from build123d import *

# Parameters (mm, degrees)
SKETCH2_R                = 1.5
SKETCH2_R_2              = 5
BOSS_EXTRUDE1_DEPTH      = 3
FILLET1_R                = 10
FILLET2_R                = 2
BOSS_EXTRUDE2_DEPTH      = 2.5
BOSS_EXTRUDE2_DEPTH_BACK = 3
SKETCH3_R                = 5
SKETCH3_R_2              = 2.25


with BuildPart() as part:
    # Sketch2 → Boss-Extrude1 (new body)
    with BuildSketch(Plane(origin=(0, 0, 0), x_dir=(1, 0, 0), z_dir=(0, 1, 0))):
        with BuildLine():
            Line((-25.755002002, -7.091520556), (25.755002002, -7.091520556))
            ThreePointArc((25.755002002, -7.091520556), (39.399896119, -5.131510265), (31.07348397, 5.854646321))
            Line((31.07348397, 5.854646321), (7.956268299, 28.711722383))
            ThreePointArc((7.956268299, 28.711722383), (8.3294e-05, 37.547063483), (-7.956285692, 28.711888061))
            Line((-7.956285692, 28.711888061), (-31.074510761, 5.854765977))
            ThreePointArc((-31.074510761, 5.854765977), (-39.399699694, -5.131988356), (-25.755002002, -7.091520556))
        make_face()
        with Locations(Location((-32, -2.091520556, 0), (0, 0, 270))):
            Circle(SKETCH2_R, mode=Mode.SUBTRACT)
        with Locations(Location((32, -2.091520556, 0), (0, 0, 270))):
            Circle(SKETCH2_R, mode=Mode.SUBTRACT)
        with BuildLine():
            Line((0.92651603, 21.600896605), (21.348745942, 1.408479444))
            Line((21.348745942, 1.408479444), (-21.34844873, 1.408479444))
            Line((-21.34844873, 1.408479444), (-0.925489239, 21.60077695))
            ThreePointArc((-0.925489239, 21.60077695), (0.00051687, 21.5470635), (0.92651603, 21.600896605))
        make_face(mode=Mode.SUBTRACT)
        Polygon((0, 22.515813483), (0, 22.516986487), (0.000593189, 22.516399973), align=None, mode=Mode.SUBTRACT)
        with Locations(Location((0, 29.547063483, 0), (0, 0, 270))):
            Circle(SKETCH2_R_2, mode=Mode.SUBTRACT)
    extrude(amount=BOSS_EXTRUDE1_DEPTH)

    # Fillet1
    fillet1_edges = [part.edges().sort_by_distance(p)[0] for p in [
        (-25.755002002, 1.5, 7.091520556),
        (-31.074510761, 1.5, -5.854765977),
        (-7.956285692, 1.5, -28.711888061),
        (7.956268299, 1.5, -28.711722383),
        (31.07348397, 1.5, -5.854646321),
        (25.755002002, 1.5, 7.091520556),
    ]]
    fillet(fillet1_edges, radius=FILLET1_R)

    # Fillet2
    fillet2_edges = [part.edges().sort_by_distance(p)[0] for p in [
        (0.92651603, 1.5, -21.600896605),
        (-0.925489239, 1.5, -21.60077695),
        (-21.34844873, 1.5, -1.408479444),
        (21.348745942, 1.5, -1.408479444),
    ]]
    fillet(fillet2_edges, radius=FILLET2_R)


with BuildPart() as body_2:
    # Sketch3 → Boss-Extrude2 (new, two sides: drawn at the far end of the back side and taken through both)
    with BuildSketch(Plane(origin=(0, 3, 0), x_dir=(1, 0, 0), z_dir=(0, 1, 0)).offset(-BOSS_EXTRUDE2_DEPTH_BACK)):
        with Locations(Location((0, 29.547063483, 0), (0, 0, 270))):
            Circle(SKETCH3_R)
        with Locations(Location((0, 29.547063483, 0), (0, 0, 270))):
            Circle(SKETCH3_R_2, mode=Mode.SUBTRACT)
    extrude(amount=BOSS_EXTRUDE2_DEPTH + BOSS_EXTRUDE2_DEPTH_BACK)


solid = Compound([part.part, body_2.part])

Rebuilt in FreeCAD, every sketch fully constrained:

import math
import FreeCAD as App
import Part
import Sketcher
from FreeCAD import Vector


def edges_at(feature, points):
    """Names of the edges that pass closest to the given points."""
    edges = feature.Shape.Edges
    near = lambda p: min(range(len(edges)), key=lambda i: edges[i].distToShape(Part.Vertex(*p))[0])
    return sorted({f"Edge{near(p) + 1}" for p in points})

doc = App.newDocument("Part")
body = doc.addObject("PartDesign::Body", "Body")

# Sketch on XZ plane
sketch1 = body.newObject("Sketcher::SketchObject", "Sketch")
sketch1.AttachmentSupport = (doc.getObject("XZ_Plane"), [""])
sketch1.MapMode = "FlatFace"
sketch1.addGeometry([
    Part.LineSegment(Vector(-25.755, 7.0915, 0), Vector(25.755, 7.0915, 0)),  # 0
    Part.ArcOfCircle(Part.Circle(Vector(32, 2.0915, 0), Vector(0, 0, 1), 8), math.radians(-97), math.radians(141)),  # 1
    Part.LineSegment(Vector(31.0735, -5.8546, 0), Vector(7.9563, -28.7117, 0)),  # 2
    Part.ArcOfCircle(Part.Circle(Vector(0, -29.5471, 0), Vector(0, 0, 1), 8), math.radians(174), math.radians(366)),  # 3
    Part.LineSegment(Vector(-7.9563, -28.7119, 0), Vector(-31.0745, -5.8548, 0)),  # 4
    Part.ArcOfCircle(Part.Circle(Vector(-32, 2.0915, 0), Vector(0, 0, 1), 8), math.radians(39), math.radians(277)),  # 5
    Part.Circle(Vector(-32, 2.0915, 0), Vector(0, 0, 1), 1.5),  # 6
    Part.Circle(Vector(32, 2.0915, 0), Vector(0, 0, 1), 1.5),  # 7
    Part.ArcOfCircle(Part.Circle(Vector(0, -29.5471, 0), Vector(0, 0, 1), 8), math.radians(83.35), math.radians(96.64)),  # 8
    Part.LineSegment(Vector(0.9265, -21.6009, 0), Vector(21.3487, -1.4085, 0)),  # 9
    Part.LineSegment(Vector(21.3487, -1.4085, 0), Vector(-21.3484, -1.4085, 0)),  # 10
    Part.LineSegment(Vector(-21.3484, -1.4085, 0), Vector(-0.9255, -21.6008, 0)),  # 11
    Part.LineSegment(Vector(0.0006, -22.5164, 0), Vector(0, -22.5158, 0)),  # 12
    Part.LineSegment(Vector(0, -22.5158, 0), Vector(0, -22.517, 0)),  # 13
    Part.LineSegment(Vector(0, -22.517, 0), Vector(0.0006, -22.5164, 0)),  # 14
    Part.Circle(Vector(0, -29.5471, 0), Vector(0, 0, 1), 5),  # 15
], False)
sketch1.addConstraint([
    Sketcher.Constraint("Coincident", 0, 2, 1, 2),
    Sketcher.Constraint("Coincident", 1, 1, 2, 1),
    Sketcher.Constraint("Coincident", 2, 2, 3, 2),
    Sketcher.Constraint("Coincident", 3, 1, 4, 1),
    Sketcher.Constraint("Coincident", 4, 2, 5, 2),
    Sketcher.Constraint("Coincident", 5, 1, 0, 1),
    Sketcher.Constraint("Coincident", 8, 1, 9, 1),
    Sketcher.Constraint("Coincident", 9, 2, 10, 1),
    Sketcher.Constraint("Coincident", 10, 2, 11, 1),
    Sketcher.Constraint("Coincident", 11, 2, 8, 2),
    Sketcher.Constraint("Coincident", 12, 2, 13, 1),
    Sketcher.Constraint("Coincident", 13, 2, 14, 1),
    Sketcher.Constraint("Coincident", 14, 2, 12, 1),
    Sketcher.Constraint("Horizontal", 0),
    Sketcher.Constraint("Horizontal", 10),
    Sketcher.Constraint("Vertical", 13),
    Sketcher.Constraint("Coincident", 6, 3, 5, 3),
    Sketcher.Constraint("Coincident", 7, 3, 1, 3),
    Sketcher.Constraint("Coincident", 8, 3, 3, 3),
    Sketcher.Constraint("Coincident", 15, 3, 3, 3),
    Sketcher.Constraint("Equal", 1, 3),
    Sketcher.Constraint("Equal", 3, 5),
    Sketcher.Constraint("Equal", 6, 7),
    Sketcher.Constraint("Equal", 5, 8),
    Sketcher.Constraint("Symmetric", 1, 3, 5, 3, -2),
    Sketcher.Constraint("PointOnObject", 3, 3, -2),
    Sketcher.Constraint("PointOnObject", 12, 2, -2),
    Sketcher.Constraint("Parallel", 2, 9),
    Sketcher.Constraint("Parallel", 4, 11),
    Sketcher.Constraint("Parallel", 11, 12),
    Sketcher.Constraint("Parallel", 9, 14),
    Sketcher.Constraint("Diameter", 6, 3.0),
    Sketcher.Constraint("Diameter", 15, 10.0),
    Sketcher.Constraint("Radius", 1, 8.0),
    Sketcher.Constraint("DistanceX", -1, 1, 1, 3, 32.0),
    Sketcher.Constraint("DistanceY", 1, 3, 0, 2, 5.0),
    Sketcher.Constraint("DistanceY", 9, 2, 0, 2, 8.5),
    Sketcher.Constraint("DistanceY", 14, 2, -1, 1, 22.5164),
    Sketcher.Constraint("DistanceX", 3, 1, 8, 1, 8.882802),
    Sketcher.Constraint("DistanceX", 10, 2, 10, 1, 42.697195),
    Sketcher.Constraint("DistanceY", 13, 2, 13, 1, 0.001173),
    Sketcher.Constraint("DistanceY", -1, 1, 1, 3, 2.091521),
    Sketcher.Constraint("DistanceX", -1, 1, 2, 2, 7.956268),
    Sketcher.Constraint("DistanceY", 3, 1, -1, 1, 28.711888),
    Sketcher.Constraint("DistanceX", 4, 2, -1, 1, 31.074511),
    Sketcher.Constraint("DistanceX", 10, 2, -1, 1, 21.348449),
    Sketcher.Constraint("DistanceX", 11, 2, -1, 1, 0.925489),
])
pad1 = body.newObject("PartDesign::Pad", "Pad")
pad1.Profile = sketch1
pad1.Length = 3
pad1.Reversed = True
doc.recompute()

fillet = body.newObject("PartDesign::Fillet", "Fillet")
fillet.Base = (pad1, edges_at(pad1, [
    (-25.755, 1.5, 7.092),
    (-31.075, 1.5, -5.855),
    (-7.956, 1.5, -28.712),
    (7.956, 1.5, -28.712),
    (31.073, 1.5, -5.855),
    (25.755, 1.5, 7.092),
]))
fillet.Radius = 10
doc.recompute()

fillet2 = body.newObject("PartDesign::Fillet", "Fillet001")
fillet2.Base = (fillet, edges_at(fillet, [
    (0.927, 1.5, -21.601),
    (-0.925, 1.5, -21.601),
    (-21.348, 1.5, -1.408),
    (21.349, 1.5, -1.408),
]))
fillet2.Radius = 2
body2 = doc.addObject("PartDesign::Body", "Body001")

# Sketch on XZ plane
sketch2 = body2.newObject("Sketcher::SketchObject", "Sketch001")
sketch2.AttachmentSupport = (doc.getObject("XZ_Plane001"), [""])
sketch2.MapMode = "FlatFace"
sketch2.AttachmentOffset = App.Placement(Vector(0, 0, -3), App.Rotation())
sketch2.addGeometry([
    Part.Circle(Vector(0, -29.5, 0), Vector(0, 0, 1), 5),
    Part.Circle(Vector(0, -29.5, 0), Vector(0, 0, 1), 2.2),
], False)
sketch2.addConstraint([
    Sketcher.Constraint("Coincident", 1, 3, 0, 3),
    Sketcher.Constraint("PointOnObject", 0, 3, -2),
    Sketcher.Constraint("Diameter", 0, 10.0),
    Sketcher.Constraint("Diameter", 1, 4.5),
    Sketcher.Constraint("DistanceY", 0, 3, -1, 1, 29.547063),
])
pad2 = body2.newObject("PartDesign::Pad", "Pad001")
pad2.Profile = sketch2
pad2.Type = "TwoLengths"
pad2.Length = 2.5
pad2.Length2 = 3
pad2.Reversed = True

doc.recompute()
